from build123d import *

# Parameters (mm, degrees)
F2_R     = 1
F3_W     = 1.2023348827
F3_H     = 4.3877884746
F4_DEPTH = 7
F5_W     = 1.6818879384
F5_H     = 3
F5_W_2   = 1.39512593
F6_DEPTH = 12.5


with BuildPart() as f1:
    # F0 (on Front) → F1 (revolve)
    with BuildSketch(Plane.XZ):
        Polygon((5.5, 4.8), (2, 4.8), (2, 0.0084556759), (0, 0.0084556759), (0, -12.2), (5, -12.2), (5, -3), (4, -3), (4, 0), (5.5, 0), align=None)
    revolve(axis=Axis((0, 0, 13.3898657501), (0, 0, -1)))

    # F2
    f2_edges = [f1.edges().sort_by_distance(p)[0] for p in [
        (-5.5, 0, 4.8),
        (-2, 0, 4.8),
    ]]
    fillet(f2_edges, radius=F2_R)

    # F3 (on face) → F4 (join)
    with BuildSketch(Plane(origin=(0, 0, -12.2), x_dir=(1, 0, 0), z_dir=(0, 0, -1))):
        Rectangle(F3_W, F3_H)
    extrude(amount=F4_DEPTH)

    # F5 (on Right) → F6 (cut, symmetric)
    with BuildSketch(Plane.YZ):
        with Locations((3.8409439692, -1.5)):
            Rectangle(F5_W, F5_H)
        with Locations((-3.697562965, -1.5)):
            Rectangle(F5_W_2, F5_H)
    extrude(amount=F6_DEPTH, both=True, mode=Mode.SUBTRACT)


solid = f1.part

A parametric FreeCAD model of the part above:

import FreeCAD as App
import Part
import Sketcher
from FreeCAD import Vector


def edges_at(feature, points):
    """Names of the edges that pass closest to the given points."""
    edges = feature.Shape.Edges
    near = lambda p: min(range(len(edges)), key=lambda i: edges[i].distToShape(Part.Vertex(*p))[0])
    return sorted({f"Edge{near(p) + 1}" for p in points})

doc = App.newDocument("Part")
body = doc.addObject("PartDesign::Body", "Body")

# Sketch on XZ plane
sketch1 = body.newObject("Sketcher::SketchObject", "Sketch")
sketch1.AttachmentSupport = (doc.getObject("XZ_Plane"), [""])
sketch1.MapMode = "FlatFace"
sketch1.addGeometry(Part.LineSegment(Vector(5.5, 4.8, 0), Vector(2, 4.8, 0)), False)
sketch1.addGeometry(Part.LineSegment(Vector(2, 4.8, 0), Vector(2, 0, 0)), False)
sketch1.addGeometry(Part.LineSegment(Vector(2, 0, 0), Vector(0, 0, 0)), False)
sketch1.addGeometry(Part.LineSegment(Vector(0, 0, 0), Vector(0, -12.2, 0)), False)
sketch1.addGeometry(Part.LineSegment(Vector(0, -12.2, 0), Vector(5, -12.2, 0)), False)
sketch1.addGeometry(Part.LineSegment(Vector(5, -12.2, 0), Vector(5, -3, 0)), False)
sketch1.addGeometry(Part.LineSegment(Vector(5, -3, 0), Vector(4, -3, 0)), False)
sketch1.addGeometry(Part.LineSegment(Vector(4, -3, 0), Vector(4, 0, 0)), False)
sketch1.addGeometry(Part.LineSegment(Vector(4, 0, 0), Vector(5.5, 0, 0)), False)
sketch1.addGeometry(Part.LineSegment(Vector(5.5, 0, 0), Vector(5.5, 4.8, 0)), False)
sketch1.addConstraint(Sketcher.Constraint("Coincident", 0, 2, 1, 1))
sketch1.addConstraint(Sketcher.Constraint("Coincident", 1, 2, 2, 1))
sketch1.addConstraint(Sketcher.Constraint("Coincident", 2, 2, 3, 1))
sketch1.addConstraint(Sketcher.Constraint("Coincident", 3, 2, 4, 1))
sketch1.addConstraint(Sketcher.Constraint("Coincident", 4, 2, 5, 1))
sketch1.addConstraint(Sketcher.Constraint("Coincident", 5, 2, 6, 1))
sketch1.addConstraint(Sketcher.Constraint("Coincident", 6, 2, 7, 1))
sketch1.addConstraint(Sketcher.Constraint("Coincident", 7, 2, 8, 1))
sketch1.addConstraint(Sketcher.Constraint("Coincident", 8, 2, 9, 1))
sketch1.addConstraint(Sketcher.Constraint("Coincident", 9, 2, 0, 1))
sketch1.addConstraint(Sketcher.Constraint("Horizontal", 0))
sketch1.addConstraint(Sketcher.Constraint("Vertical", 1))
sketch1.addConstraint(Sketcher.Constraint("Horizontal", 2))
sketch1.addConstraint(Sketcher.Constraint("Vertical", 3))
sketch1.addConstraint(Sketcher.Constraint("Horizontal", 4))
sketch1.addConstraint(Sketcher.Constraint("Vertical", 5))
sketch1.addConstraint(Sketcher.Constraint("Horizontal", 6))
sketch1.addConstraint(Sketcher.Constraint("Vertical", 7))
sketch1.addConstraint(Sketcher.Constraint("Horizontal", 8))
sketch1.addConstraint(Sketcher.Constraint("Vertical", 9))
sketch1.addConstraint(Sketcher.Constraint("PointOnObject", 2, 2, -2))
sketch1.addConstraint(Sketcher.Constraint("PointOnObject", 7, 2, -1))
sketch1.addConstraint(Sketcher.Constraint("DistanceX", 2, 2, 2, 1, 2.0))
sketch1.addConstraint(Sketcher.Constraint("DistanceX", 4, 1, 4, 2, 5.0))
sketch1.addConstraint(Sketcher.Constraint("DistanceX", 6, 2, 6, 1, 1.0))
sketch1.addConstraint(Sketcher.Constraint("DistanceY", 7, 1, 7, 2, 3.0))
sketch1.addConstraint(Sketcher.Constraint("DistanceX", 0, 2, 0, 1, 3.5))
sketch1.addConstraint(Sketcher.Constraint("DistanceY", 5, 1, 5, 2, 9.2))
sketch1.addConstraint(Sketcher.Constraint("DistanceY", 9, 1, 9, 2, 4.8))
sketch1.addConstraint(Sketcher.Constraint("DistanceY", 1, 2, 1, 1, 4.791544))
revolution = body.newObject("PartDesign::Revolution", "Revolution")
revolution.Profile = sketch1
revolution.ReferenceAxis = (sketch1, ["V_Axis"])
revolution.Angle = 360
doc.recompute()

fillet = body.newObject("PartDesign::Fillet", "Fillet")
fillet.Base = (revolution, edges_at(revolution, [(-5.5, 0, 4.8), (-2, 0, 4.8)]))
fillet.Radius = 1

# Sketch on XY plane
sketch2 = body.newObject("Sketcher::SketchObject", "Sketch001")
sketch2.AttachmentSupport = (doc.getObject("XY_Plane"), [""])
sketch2.MapMode = "FlatFace"
sketch2.AttachmentOffset = App.Placement(Vector(0, 0, -12.2), App.Rotation())
sketch2.addGeometry(Part.LineSegment(Vector(-0.6, -2.2, 0), Vector(-0.6, 2.2, 0)), False)
sketch2.addGeometry(Part.LineSegment(Vector(-0.6, 2.2, 0), Vector(0.6, 2.2, 0)), False)
sketch2.addGeometry(Part.LineSegment(Vector(0.6, 2.2, 0), Vector(0.6, -2.2, 0)), False)
sketch2.addGeometry(Part.LineSegment(Vector(0.6, -2.2, 0), Vector(-0.6, -2.2, 0)), False)
sketch2.addConstraint(Sketcher.Constraint("Coincident", 0, 2, 1, 1))
sketch2.addConstraint(Sketcher.Constraint("Coincident", 1, 2, 2, 1))
sketch2.addConstraint(Sketcher.Constraint("Coincident", 2, 2, 3, 1))
sketch2.addConstraint(Sketcher.Constraint("Coincident", 3, 2, 0, 1))
sketch2.addConstraint(Sketcher.Constraint("Vertical", 0))
sketch2.addConstraint(Sketcher.Constraint("Horizontal", 1))
sketch2.addConstraint(Sketcher.Constraint("Vertical", 2))
sketch2.addConstraint(Sketcher.Constraint("Horizontal", 3))
sketch2.addConstraint(Sketcher.Constraint("Symmetric", 0, 2, 2, 2, -1, 1))
sketch2.addConstraint(Sketcher.Constraint("DistanceY", 0, 1, 0, 2, 4.387788))
sketch2.addConstraint(Sketcher.Constraint("DistanceX", 1, 1, 1, 2, 1.202335))
pad1 = body.newObject("PartDesign::Pad", "Pad")
pad1.Profile = sketch2
pad1.Length = 7
pad1.Reversed = True

# Sketch on YZ plane
sketch3 = body.newObject("Sketcher::SketchObject", "Sketch002")
sketch3.AttachmentSupport = (doc.getObject("YZ_Plane"), [""])
sketch3.MapMode = "FlatFace"
sketch3.addGeometry(Part.LineSegment(Vector(3, 0, 0), Vector(3, -3, 0)), False)
sketch3.addGeometry(Part.LineSegment(Vector(3, -3, 0), Vector(4.7, -3, 0)), False)
sketch3.addGeometry(Part.LineSegment(Vector(4.7, -3, 0), Vector(4.7, 0, 0)), False)
sketch3.addGeometry(Part.LineSegment(Vector(4.7, 0, 0), Vector(3, 0, 0)), False)
sketch3.addGeometry(Part.LineSegment(Vector(-4.4, 0, 0), Vector(-4.4, -3, 0)), False)
sketch3.addGeometry(Part.LineSegment(Vector(-4.4, -3, 0), Vector(-3, -3, 0)), False)
sketch3.addGeometry(Part.LineSegment(Vector(-3, -3, 0), Vector(-3, 0, 0)), False)
sketch3.addGeometry(Part.LineSegment(Vector(-3, 0, 0), Vector(-4.4, 0, 0)), False)
sketch3.addConstraint(Sketcher.Constraint("Coincident", 0, 2, 1, 1))
sketch3.addConstraint(Sketcher.Constraint("Coincident", 1, 2, 2, 1))
sketch3.addConstraint(Sketcher.Constraint("Coincident", 2, 2, 3, 1))
sketch3.addConstraint(Sketcher.Constraint("Coincident", 3, 2, 0, 1))
sketch3.addConstraint(Sketcher.Constraint("Coincident", 4, 2, 5, 1))
sketch3.addConstraint(Sketcher.Constraint("Coincident", 5, 2, 6, 1))
sketch3.addConstraint(Sketcher.Constraint("Coincident", 6, 2, 7, 1))
sketch3.addConstraint(Sketcher.Constraint("Coincident", 7, 2, 4, 1))
sketch3.addConstraint(Sketcher.Constraint("Vertical", 0))
sketch3.addConstraint(Sketcher.Constraint("Horizontal", 1))
sketch3.addConstraint(Sketcher.Constraint("Vertical", 2))
sketch3.addConstraint(Sketcher.Constraint("Horizontal", 3))
sketch3.addConstraint(Sketcher.Constraint("Vertical", 4))
sketch3.addConstraint(Sketcher.Constraint("Horizontal", 5))
sketch3.addConstraint(Sketcher.Constraint("Vertical", 6))
sketch3.addConstraint(Sketcher.Constraint("Horizontal", 7))
sketch3.addConstraint(Sketcher.Constraint("Symmetric", 3, 2, 6, 2, -1, 1))
sketch3.addConstraint(Sketcher.Constraint("PointOnObject", 2, 2, -1))
sketch3.addConstraint(Sketcher.Constraint("Horizontal", 1, 2, 4, 2))
sketch3.addConstraint(Sketcher.Constraint("DistanceY", 0, 2, 0, 1, 3.0))
sketch3.addConstraint(Sketcher.Constraint("DistanceX", -1, 1, 0, 2, 3.0))
sketch3.addConstraint(Sketcher.Constraint("DistanceX", 1, 1, 1, 2, 1.681888))
sketch3.addConstraint(Sketcher.Constraint("DistanceX", 5, 1, 5, 2, 1.395126))
pocket1 = body.newObject("PartDesign::Pocket", "Pocket")
pocket1.Profile = sketch3
pocket1.Length = 25
pocket1.Midplane = True

doc.recompute()
